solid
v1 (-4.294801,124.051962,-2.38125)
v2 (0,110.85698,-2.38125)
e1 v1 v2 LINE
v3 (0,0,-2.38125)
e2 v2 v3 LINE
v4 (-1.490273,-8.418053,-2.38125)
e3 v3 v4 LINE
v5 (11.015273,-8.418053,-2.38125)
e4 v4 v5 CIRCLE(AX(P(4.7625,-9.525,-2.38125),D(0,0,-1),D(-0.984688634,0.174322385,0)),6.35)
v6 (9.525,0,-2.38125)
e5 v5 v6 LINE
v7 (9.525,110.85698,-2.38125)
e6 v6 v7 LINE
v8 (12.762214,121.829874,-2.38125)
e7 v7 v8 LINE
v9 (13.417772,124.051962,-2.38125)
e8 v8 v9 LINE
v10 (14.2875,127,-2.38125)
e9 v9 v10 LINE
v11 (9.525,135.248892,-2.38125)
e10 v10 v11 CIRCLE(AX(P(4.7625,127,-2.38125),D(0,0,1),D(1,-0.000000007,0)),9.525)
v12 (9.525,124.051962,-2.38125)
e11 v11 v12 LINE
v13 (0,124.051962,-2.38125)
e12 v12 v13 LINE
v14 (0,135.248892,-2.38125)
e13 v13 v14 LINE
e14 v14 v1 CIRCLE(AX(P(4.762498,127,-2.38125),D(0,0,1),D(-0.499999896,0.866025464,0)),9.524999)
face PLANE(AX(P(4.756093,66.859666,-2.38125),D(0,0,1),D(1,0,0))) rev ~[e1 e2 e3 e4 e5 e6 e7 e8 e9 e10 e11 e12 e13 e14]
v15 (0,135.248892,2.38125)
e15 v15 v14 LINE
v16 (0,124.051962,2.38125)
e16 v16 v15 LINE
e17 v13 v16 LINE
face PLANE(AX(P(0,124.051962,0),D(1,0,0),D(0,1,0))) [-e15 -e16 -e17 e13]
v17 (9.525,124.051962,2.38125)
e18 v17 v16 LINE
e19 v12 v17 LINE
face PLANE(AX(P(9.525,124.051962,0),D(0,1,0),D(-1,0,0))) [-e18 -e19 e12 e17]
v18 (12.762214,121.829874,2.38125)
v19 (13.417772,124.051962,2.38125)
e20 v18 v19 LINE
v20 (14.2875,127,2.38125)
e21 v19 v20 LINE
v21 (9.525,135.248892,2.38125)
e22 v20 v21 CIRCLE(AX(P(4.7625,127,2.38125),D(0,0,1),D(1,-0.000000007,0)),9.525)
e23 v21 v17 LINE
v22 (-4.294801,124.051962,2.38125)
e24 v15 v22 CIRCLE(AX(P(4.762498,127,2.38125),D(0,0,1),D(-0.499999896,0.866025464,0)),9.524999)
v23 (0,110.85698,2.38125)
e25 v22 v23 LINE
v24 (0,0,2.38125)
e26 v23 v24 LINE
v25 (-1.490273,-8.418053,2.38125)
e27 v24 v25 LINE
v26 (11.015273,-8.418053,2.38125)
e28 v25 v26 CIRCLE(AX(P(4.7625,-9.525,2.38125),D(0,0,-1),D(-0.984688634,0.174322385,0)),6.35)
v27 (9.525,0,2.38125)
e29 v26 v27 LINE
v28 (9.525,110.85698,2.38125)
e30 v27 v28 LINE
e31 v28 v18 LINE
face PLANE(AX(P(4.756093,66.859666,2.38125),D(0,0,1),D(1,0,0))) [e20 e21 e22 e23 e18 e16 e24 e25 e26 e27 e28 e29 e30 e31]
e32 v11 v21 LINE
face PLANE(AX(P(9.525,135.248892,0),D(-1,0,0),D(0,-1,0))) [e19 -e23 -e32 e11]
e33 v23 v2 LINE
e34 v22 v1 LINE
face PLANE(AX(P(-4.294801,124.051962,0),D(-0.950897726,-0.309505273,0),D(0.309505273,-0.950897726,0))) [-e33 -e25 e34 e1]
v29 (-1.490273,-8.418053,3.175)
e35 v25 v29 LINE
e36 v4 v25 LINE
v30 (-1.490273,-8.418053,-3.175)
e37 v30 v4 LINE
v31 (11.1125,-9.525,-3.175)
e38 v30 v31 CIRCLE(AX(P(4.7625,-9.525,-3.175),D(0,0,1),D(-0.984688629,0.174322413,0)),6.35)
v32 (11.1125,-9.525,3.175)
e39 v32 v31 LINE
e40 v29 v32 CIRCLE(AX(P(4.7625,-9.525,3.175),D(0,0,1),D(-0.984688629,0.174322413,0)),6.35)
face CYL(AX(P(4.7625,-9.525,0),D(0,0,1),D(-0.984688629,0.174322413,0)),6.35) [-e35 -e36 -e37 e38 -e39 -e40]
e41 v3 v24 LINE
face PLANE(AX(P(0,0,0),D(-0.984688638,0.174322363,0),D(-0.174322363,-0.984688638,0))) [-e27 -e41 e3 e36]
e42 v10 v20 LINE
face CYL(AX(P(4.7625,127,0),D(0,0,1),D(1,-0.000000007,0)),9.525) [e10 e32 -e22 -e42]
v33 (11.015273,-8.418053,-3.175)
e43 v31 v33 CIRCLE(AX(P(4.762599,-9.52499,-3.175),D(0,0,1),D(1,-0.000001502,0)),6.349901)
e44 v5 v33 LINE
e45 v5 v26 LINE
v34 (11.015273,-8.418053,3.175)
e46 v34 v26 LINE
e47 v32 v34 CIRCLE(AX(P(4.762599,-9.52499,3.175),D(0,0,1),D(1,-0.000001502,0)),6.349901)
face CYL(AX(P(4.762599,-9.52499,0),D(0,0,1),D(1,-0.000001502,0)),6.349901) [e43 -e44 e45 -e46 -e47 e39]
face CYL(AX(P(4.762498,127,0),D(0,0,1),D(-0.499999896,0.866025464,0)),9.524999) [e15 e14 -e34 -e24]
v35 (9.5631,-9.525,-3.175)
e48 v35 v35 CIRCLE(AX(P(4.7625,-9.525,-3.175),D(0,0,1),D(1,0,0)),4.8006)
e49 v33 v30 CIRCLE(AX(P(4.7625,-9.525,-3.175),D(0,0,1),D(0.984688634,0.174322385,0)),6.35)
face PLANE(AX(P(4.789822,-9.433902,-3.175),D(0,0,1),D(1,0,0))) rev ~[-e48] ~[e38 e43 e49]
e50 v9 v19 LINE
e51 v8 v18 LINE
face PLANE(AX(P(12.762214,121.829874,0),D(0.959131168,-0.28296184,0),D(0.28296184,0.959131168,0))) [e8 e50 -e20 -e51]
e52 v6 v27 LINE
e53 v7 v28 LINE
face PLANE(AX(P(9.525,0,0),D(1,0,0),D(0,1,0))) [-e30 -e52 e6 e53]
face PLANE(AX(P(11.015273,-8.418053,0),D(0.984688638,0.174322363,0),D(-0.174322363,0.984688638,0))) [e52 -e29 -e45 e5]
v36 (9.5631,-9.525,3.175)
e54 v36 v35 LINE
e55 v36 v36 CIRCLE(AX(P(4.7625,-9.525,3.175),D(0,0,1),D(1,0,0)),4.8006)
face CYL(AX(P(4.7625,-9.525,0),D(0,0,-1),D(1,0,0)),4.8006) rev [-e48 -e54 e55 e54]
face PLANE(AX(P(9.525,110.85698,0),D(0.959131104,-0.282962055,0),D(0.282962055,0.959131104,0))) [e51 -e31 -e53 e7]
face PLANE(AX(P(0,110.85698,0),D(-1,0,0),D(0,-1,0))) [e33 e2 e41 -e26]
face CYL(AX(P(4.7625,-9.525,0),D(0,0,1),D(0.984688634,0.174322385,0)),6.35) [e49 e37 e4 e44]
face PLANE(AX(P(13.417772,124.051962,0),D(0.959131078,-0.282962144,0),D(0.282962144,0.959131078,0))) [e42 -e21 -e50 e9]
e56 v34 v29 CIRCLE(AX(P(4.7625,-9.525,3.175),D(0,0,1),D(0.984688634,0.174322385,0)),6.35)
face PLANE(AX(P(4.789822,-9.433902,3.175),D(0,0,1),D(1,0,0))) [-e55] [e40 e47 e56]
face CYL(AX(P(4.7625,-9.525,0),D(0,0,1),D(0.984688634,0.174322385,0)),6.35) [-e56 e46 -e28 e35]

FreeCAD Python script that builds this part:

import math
import FreeCAD as App
import Part
import Sketcher
Q = App.Units.Quantity

doc = App.newDocument("Part")
params = doc.addObject("Spreadsheet::Sheet", "Params")
for row, (alias, value) in enumerate([
    ("sketch1_radius", "0.25 in"),
    ("sketch1_radius2", "0.375 in"),
    ("sketch1_width", "0.375 in"),
    ("pad1_length", "0.125 in"),
    ("sketch2_radius", "0.25 in"),
    ("sketch2_radius2", "0.375 in"),
    ("sketch2_width", "0.375 in"),
    ("pad2_length", "0.1875 in"),
    ("sketch3_radius", "0.25 in"),
    ("sketch3_diameter", "0.378 in"),
    ("pad3_length", "0.25 in"),
], start=1):
    params.set(f"A{row}", alias)
    params.set(f"B{row}", "=" + value)
    params.setAlias(f"B{row}", alias)

body = doc.addObject("PartDesign::Body", "Body")

sketch1 = body.newObject("Sketcher::SketchObject", "Sketch")
sketch1.AttachmentSupport = (doc.getObject("XY_Plane"), [""])
sketch1.MapMode = "FlatFace"
sketch1.addGeometry(Part.LineSegment(App.Vector(0, 110.9, 0), App.Vector(0, 0, 0)), False)
sketch1.addGeometry(Part.LineSegment(App.Vector(0, 0, 0), App.Vector(-1.5, -8.4, 0)), False)
sketch1.addGeometry(Part.ArcOfCircle(Part.Circle(App.Vector(4.8, -9.5, 0), App.Vector(0, 0, 1), 6.4), math.radians(10), math.radians(170)), False)
sketch1.addGeometry(Part.LineSegment(App.Vector(11, -8.4, 0), App.Vector(9.5, 0, 0)), False)
sketch1.addGeometry(Part.LineSegment(App.Vector(9.5, 0, 0), App.Vector(9.5, 110.9, 0)), False)
sketch1.addGeometry(Part.LineSegment(App.Vector(9.5, 110.9, 0), App.Vector(12.8, 121.8, 0)), False)
sketch1.addGeometry(Part.LineSegment(App.Vector(12.8, 121.8, 0), App.Vector(13.4, 124.1, 0)), False)
sketch1.addGeometry(Part.LineSegment(App.Vector(13.4, 124.1, 0), App.Vector(14.3, 127, 0)), False)
sketch1.addGeometry(Part.ArcOfCircle(Part.Circle(App.Vector(4.8, 127, 0), App.Vector(0, 0, 1), 9.5), math.radians(0), math.radians(60)), False)
sketch1.addGeometry(Part.LineSegment(App.Vector(9.5, 135.2, 0), App.Vector(9.5, 124.1, 0)), False)
sketch1.addGeometry(Part.LineSegment(App.Vector(9.5, 124.1, 0), App.Vector(0, 124.1, 0)), False)
sketch1.addGeometry(Part.LineSegment(App.Vector(0, 124.1, 0), App.Vector(0, 135.2, 0)), False)
sketch1.addGeometry(Part.ArcOfCircle(Part.Circle(App.Vector(4.8, 127, 0), App.Vector(0, 0, 1), 9.5), math.radians(120), math.radians(198)), False)
sketch1.addGeometry(Part.LineSegment(App.Vector(-4.3, 124.1, 0), App.Vector(0, 110.9, 0)), False)
sketch1.addConstraint(Sketcher.Constraint("Coincident", 0, 2, 1, 1))
sketch1.addConstraint(Sketcher.Constraint("Tangent", 1, 2, 2, 2))
sketch1.addConstraint(Sketcher.Constraint("Tangent", 2, 1, 3, 1))
sketch1.addConstraint(Sketcher.Constraint("Coincident", 3, 2, 4, 1))
sketch1.addConstraint(Sketcher.Constraint("Coincident", 4, 2, 5, 1))
sketch1.addConstraint(Sketcher.Constraint("Coincident", 5, 2, 6, 1))
sketch1.addConstraint(Sketcher.Constraint("Coincident", 6, 2, 7, 1))
sketch1.addConstraint(Sketcher.Constraint("Coincident", 7, 2, 8, 1))
sketch1.addConstraint(Sketcher.Constraint("Coincident", 8, 2, 9, 1))
sketch1.addConstraint(Sketcher.Constraint("Coincident", 9, 2, 10, 1))
sketch1.addConstraint(Sketcher.Constraint("Coincident", 10, 2, 11, 1))
sketch1.addConstraint(Sketcher.Constraint("Coincident", 11, 2, 12, 1))
sketch1.addConstraint(Sketcher.Constraint("Tangent", 12, 2, 13, 1))
sketch1.addConstraint(Sketcher.Constraint("Coincident", 13, 2, 0, 1))
sketch1.addConstraint(Sketcher.Constraint("Vertical", 0))
sketch1.addConstraint(Sketcher.Constraint("Vertical", 4))
sketch1.addConstraint(Sketcher.Constraint("Vertical", 9))
sketch1.addConstraint(Sketcher.Constraint("Horizontal", 10))
sketch1.addConstraint(Sketcher.Constraint("Vertical", 11))
sketch1.addConstraint(Sketcher.Constraint("Coincident", 0, 2, -1, 1))
sketch1.addConstraint(Sketcher.Constraint("Coincident", 12, 3, 8, 3))
sketch1.addConstraint(Sketcher.Constraint("Equal", 8, 12))
sketch1.addConstraint(Sketcher.Constraint("PointOnObject", 3, 2, -1))
sketch1.addConstraint(Sketcher.Constraint("PointOnObject", 10, 2, -2))
sketch1.addConstraint(Sketcher.Constraint("Parallel", 5, 6))
sketch1.addConstraint(Sketcher.Constraint("Parallel", 6, 7))
sketch1.addConstraint(Sketcher.Constraint("Horizontal", 1, 2, 2, 1))
sketch1.addConstraint(Sketcher.Constraint("Horizontal", 12, 3, 7, 2))
sketch1.addConstraint(Sketcher.Constraint("Horizontal", 6, 2, 9, 2))
sketch1.addConstraint(Sketcher.Constraint("Horizontal", 8, 2, 11, 2))
sketch1.addConstraint(Sketcher.Constraint("Horizontal", 10, 2, 12, 2))
sketch1.addConstraint(Sketcher.Constraint("Horizontal", 4, 2, 13, 2))
sketch1.addConstraint(Sketcher.Constraint("Vertical", 2, 3, 8, 3))
sketch1.addConstraint(Sketcher.Constraint("Radius", 2, Q("0.25 in")))
sketch1.addConstraint(Sketcher.Constraint("DistanceY", -1, 1, 8, 3, Q("5 in")))
sketch1.addConstraint(Sketcher.Constraint("Radius", 8, Q("0.375 in")))
sketch1.addConstraint(Sketcher.Constraint("DistanceX", 10, 2, 10, 1, Q("0.375 in")))
sketch1.addConstraint(Sketcher.Constraint("DistanceY", 2, 3, -1, 1, Q("0.375 in")))
sketch1.addConstraint(Sketcher.Constraint("DistanceY", 0, 2, 0, 1, Q("110.85698 mm")))
sketch1.addConstraint(Sketcher.Constraint("Distance", 6, Q("2.316772 mm")))
sketch1.setExpression("Constraints[33]", "Params.sketch1_radius")
sketch1.setExpression("Constraints[35]", "Params.sketch1_radius2")
sketch1.setExpression("Constraints[36]", "Params.sketch1_width")
pad1 = body.newObject("PartDesign::Pad", "Pad")
pad1.Profile = sketch1
pad1.setExpression("Length", "Params.pad1_length")
pad1.Midplane = True

sketch2 = body.newObject("Sketcher::SketchObject", "Sketch001")
sketch2.AttachmentSupport = (doc.getObject("XY_Plane"), [""])
sketch2.MapMode = "FlatFace"
sketch2.addGeometry(Part.LineSegment(App.Vector(0, 110.9, 0), App.Vector(0, 0, 0)), False)
sketch2.addGeometry(Part.LineSegment(App.Vector(0, 0, 0), App.Vector(-1.5, -8.4, 0)), False)
sketch2.addGeometry(Part.ArcOfCircle(Part.Circle(App.Vector(4.8, -9.5, 0), App.Vector(0, 0, 1), 6.4), math.radians(10), math.radians(170)), False)
sketch2.addGeometry(Part.LineSegment(App.Vector(11, -8.4, 0), App.Vector(9.5, 0, 0)), False)
sketch2.addGeometry(Part.LineSegment(App.Vector(9.5, 0, 0), App.Vector(9.5, 110.9, 0)), False)
sketch2.addGeometry(Part.LineSegment(App.Vector(9.5, 110.9, 0), App.Vector(12.8, 121.8, 0)), False)
sketch2.addGeometry(Part.LineSegment(App.Vector(12.8, 121.8, 0), App.Vector(13.4, 124.1, 0)), False)
sketch2.addGeometry(Part.LineSegment(App.Vector(13.4, 124.1, 0), App.Vector(14.3, 127, 0)), False)
sketch2.addGeometry(Part.ArcOfCircle(Part.Circle(App.Vector(4.8, 127, 0), App.Vector(0, 0, 1), 9.5), math.radians(0), math.radians(60)), False)
sketch2.addGeometry(Part.LineSegment(App.Vector(9.5, 135.2, 0), App.Vector(9.5, 124.1, 0)), False)
sketch2.addGeometry(Part.LineSegment(App.Vector(9.5, 124.1, 0), App.Vector(0, 124.1, 0)), False)
sketch2.addGeometry(Part.LineSegment(App.Vector(0, 124.1, 0), App.Vector(0, 135.2, 0)), False)
sketch2.addGeometry(Part.ArcOfCircle(Part.Circle(App.Vector(4.8, 127, 0), App.Vector(0, 0, 1), 9.5), math.radians(120), math.radians(198)), False)
sketch2.addGeometry(Part.LineSegment(App.Vector(-4.3, 124.1, 0), App.Vector(0, 110.9, 0)), False)
sketch2.addConstraint(Sketcher.Constraint("Coincident", 0, 2, 1, 1))
sketch2.addConstraint(Sketcher.Constraint("Tangent", 1, 2, 2, 2))
sketch2.addConstraint(Sketcher.Constraint("Tangent", 2, 1, 3, 1))
sketch2.addConstraint(Sketcher.Constraint("Coincident", 3, 2, 4, 1))
sketch2.addConstraint(Sketcher.Constraint("Coincident", 4, 2, 5, 1))
sketch2.addConstraint(Sketcher.Constraint("Coincident", 5, 2, 6, 1))
sketch2.addConstraint(Sketcher.Constraint("Coincident", 6, 2, 7, 1))
sketch2.addConstraint(Sketcher.Constraint("Coincident", 7, 2, 8, 1))
sketch2.addConstraint(Sketcher.Constraint("Coincident", 8, 2, 9, 1))
sketch2.addConstraint(Sketcher.Constraint("Coincident", 9, 2, 10, 1))
sketch2.addConstraint(Sketcher.Constraint("Coincident", 10, 2, 11, 1))
sketch2.addConstraint(Sketcher.Constraint("Coincident", 11, 2, 12, 1))
sketch2.addConstraint(Sketcher.Constraint("Tangent", 12, 2, 13, 1))
sketch2.addConstraint(Sketcher.Constraint("Coincident", 13, 2, 0, 1))
sketch2.addConstraint(Sketcher.Constraint("Vertical", 0))
sketch2.addConstraint(Sketcher.Constraint("Vertical", 4))
sketch2.addConstraint(Sketcher.Constraint("Vertical", 9))
sketch2.addConstraint(Sketcher.Constraint("Horizontal", 10))
sketch2.addConstraint(Sketcher.Constraint("Vertical", 11))
sketch2.addConstraint(Sketcher.Constraint("Coincident", 0, 2, -1, 1))
sketch2.addConstraint(Sketcher.Constraint("Coincident", 12, 3, 8, 3))
sketch2.addConstraint(Sketcher.Constraint("Equal", 8, 12))
sketch2.addConstraint(Sketcher.Constraint("PointOnObject", 3, 2, -1))
sketch2.addConstraint(Sketcher.Constraint("PointOnObject", 10, 2, -2))
sketch2.addConstraint(Sketcher.Constraint("Parallel", 5, 6))
sketch2.addConstraint(Sketcher.Constraint("Parallel", 6, 7))
sketch2.addConstraint(Sketcher.Constraint("Horizontal", 1, 2, 2, 1))
sketch2.addConstraint(Sketcher.Constraint("Horizontal", 12, 3, 7, 2))
sketch2.addConstraint(Sketcher.Constraint("Horizontal", 6, 2, 9, 2))
sketch2.addConstraint(Sketcher.Constraint("Horizontal", 8, 2, 11, 2))
sketch2.addConstraint(Sketcher.Constraint("Horizontal", 10, 2, 12, 2))
sketch2.addConstraint(Sketcher.Constraint("Horizontal", 4, 2, 13, 2))
sketch2.addConstraint(Sketcher.Constraint("Vertical", 2, 3, 8, 3))
sketch2.addConstraint(Sketcher.Constraint("Radius", 2, Q("0.25 in")))
sketch2.addConstraint(Sketcher.Constraint("DistanceY", -1, 1, 8, 3, Q("5 in")))
sketch2.addConstraint(Sketcher.Constraint("Radius", 8, Q("0.375 in")))
sketch2.addConstraint(Sketcher.Constraint("DistanceX", 10, 2, 10, 1, Q("0.375 in")))
sketch2.addConstraint(Sketcher.Constraint("DistanceY", 2, 3, -1, 1, Q("0.375 in")))
sketch2.addConstraint(Sketcher.Constraint("DistanceY", 0, 2, 0, 1, Q("110.85698 mm")))
sketch2.addConstraint(Sketcher.Constraint("Distance", 6, Q("2.316772 mm")))
sketch2.setExpression("Constraints[33]", "Params.sketch2_radius")
sketch2.setExpression("Constraints[35]", "Params.sketch2_radius2")
sketch2.setExpression("Constraints[36]", "Params.sketch2_width")
pad2 = body.newObject("PartDesign::Pad", "Pad001")
pad2.Profile = sketch2
pad2.setExpression("Length", "Params.pad2_length")
pad2.Midplane = True

sketch3 = body.newObject("Sketcher::SketchObject", "Sketch002")
sketch3.AttachmentSupport = (doc.getObject("XY_Plane"), [""])
sketch3.MapMode = "FlatFace"
sketch3.addGeometry(Part.ArcOfCircle(Part.Circle(App.Vector(4.7625, -9.525, 0), App.Vector(0, 0, 1), 6.35), math.radians(10.039228), math.radians(169.960772)), False)
sketch3.addGeometry(Part.ArcOfCircle(Part.Circle(App.Vector(4.7625, -9.525, 0), App.Vector(0, 0, 1), 6.35), math.radians(169.960771), math.radians(360.000003)), False)
sketch3.addGeometry(Part.ArcOfCircle(Part.Circle(App.Vector(4.762599, -9.52499, 0), App.Vector(0, 0, 1), 6.349901), math.radians(-0.000086), math.radians(10.039297)), False)
sketch3.addGeometry(Part.Circle(App.Vector(4.7625, -9.525, 0), App.Vector(0, 0, 1), 4.8006), False)
sketch3.addConstraint(Sketcher.Constraint("Coincident", 0, 2, 1, 1))
sketch3.addConstraint(Sketcher.Constraint("Coincident", 1, 2, 2, 1))
sketch3.addConstraint(Sketcher.Constraint("Coincident", 2, 2, 0, 1))
sketch3.addConstraint(Sketcher.Constraint("Coincident", 1, 3, 0, 3))
sketch3.addConstraint(Sketcher.Constraint("Coincident", 3, 3, 0, 3))
sketch3.addConstraint(Sketcher.Constraint("Radius", 0, Q("0.25 in")))
sketch3.addConstraint(Sketcher.Constraint("Diameter", 3, Q("0.378 in")))
sketch3.addConstraint(Sketcher.Constraint("Radius", 2, Q("6.349901 mm")))
sketch3.addConstraint(Sketcher.Constraint("DistanceX", -1, 1, 0, 3, Q("0.1875 in")))
sketch3.addConstraint(Sketcher.Constraint("DistanceY", 0, 3, -1, 1, Q("0.375 in")))
sketch3.addConstraint(Sketcher.Constraint("DistanceY", 1, 2, -1, 1, Q("0.375 in")))
sketch3.addConstraint(Sketcher.Constraint("DistanceX", 0, 2, -1, 1, Q("1.490273 mm")))
sketch3.addConstraint(Sketcher.Constraint("DistanceX", -1, 1, 2, 2, Q("11.015273 mm")))
sketch3.setExpression("Constraints[5]", "Params.sketch3_radius")
sketch3.setExpression("Constraints[6]", "Params.sketch3_diameter")
pad3 = body.newObject("PartDesign::Pad", "Pad002")
pad3.Profile = sketch3
pad3.setExpression("Length", "Params.pad3_length")
pad3.Midplane = True

doc.recompute()
